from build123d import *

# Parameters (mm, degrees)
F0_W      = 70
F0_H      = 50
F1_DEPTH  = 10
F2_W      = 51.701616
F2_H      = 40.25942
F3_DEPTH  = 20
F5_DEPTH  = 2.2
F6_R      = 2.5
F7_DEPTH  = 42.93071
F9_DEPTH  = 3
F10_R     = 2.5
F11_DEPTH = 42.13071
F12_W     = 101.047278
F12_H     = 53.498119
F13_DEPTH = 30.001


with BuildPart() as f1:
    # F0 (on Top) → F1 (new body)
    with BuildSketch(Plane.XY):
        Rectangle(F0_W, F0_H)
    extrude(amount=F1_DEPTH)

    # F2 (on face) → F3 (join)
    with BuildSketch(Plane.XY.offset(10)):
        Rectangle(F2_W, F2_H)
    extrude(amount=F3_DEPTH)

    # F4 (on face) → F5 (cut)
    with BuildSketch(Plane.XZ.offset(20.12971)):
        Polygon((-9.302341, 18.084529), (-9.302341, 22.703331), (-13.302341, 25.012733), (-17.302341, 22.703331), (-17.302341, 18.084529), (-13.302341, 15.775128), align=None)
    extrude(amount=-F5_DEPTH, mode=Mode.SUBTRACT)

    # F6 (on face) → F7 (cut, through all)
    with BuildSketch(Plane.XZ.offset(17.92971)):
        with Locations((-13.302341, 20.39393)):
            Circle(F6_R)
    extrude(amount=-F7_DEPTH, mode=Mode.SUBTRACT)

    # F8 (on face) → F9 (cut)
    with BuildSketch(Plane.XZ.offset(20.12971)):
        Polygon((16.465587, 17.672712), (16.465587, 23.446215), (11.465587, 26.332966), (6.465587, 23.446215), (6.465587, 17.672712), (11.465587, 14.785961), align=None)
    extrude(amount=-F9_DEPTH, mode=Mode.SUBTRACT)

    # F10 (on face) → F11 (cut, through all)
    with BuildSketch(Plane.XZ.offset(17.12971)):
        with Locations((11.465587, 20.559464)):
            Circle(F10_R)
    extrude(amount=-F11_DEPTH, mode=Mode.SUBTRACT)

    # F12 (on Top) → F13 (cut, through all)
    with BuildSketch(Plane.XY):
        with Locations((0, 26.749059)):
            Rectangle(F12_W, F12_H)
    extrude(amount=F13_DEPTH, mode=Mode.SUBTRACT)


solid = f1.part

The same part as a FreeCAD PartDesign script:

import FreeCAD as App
import Part
import Sketcher
from FreeCAD import Vector
Q = App.Units.Quantity

doc = App.newDocument("Part")
body = doc.addObject("PartDesign::Body", "Body")

sketch1 = body.newObject("Sketcher::SketchObject", "Sketch")
sketch1.AttachmentSupport = (doc.getObject("XY_Plane"), [""])
sketch1.MapMode = "FlatFace"
sketch1.addGeometry(Part.LineSegment(Vector(-35, 25, 0), Vector(-35, -25, 0)), False)
sketch1.addGeometry(Part.LineSegment(Vector(-35, -25, 0), Vector(35, -25, 0)), False)
sketch1.addGeometry(Part.LineSegment(Vector(35, -25, 0), Vector(35, 25, 0)), False)
sketch1.addGeometry(Part.LineSegment(Vector(35, 25, 0), Vector(-35, 25, 0)), False)
sketch1.addConstraint(Sketcher.Constraint("Coincident", 0, 2, 1, 1))
sketch1.addConstraint(Sketcher.Constraint("Coincident", 1, 2, 2, 1))
sketch1.addConstraint(Sketcher.Constraint("Coincident", 2, 2, 3, 1))
sketch1.addConstraint(Sketcher.Constraint("Coincident", 3, 2, 0, 1))
sketch1.addConstraint(Sketcher.Constraint("Vertical", 0))
sketch1.addConstraint(Sketcher.Constraint("Horizontal", 1))
sketch1.addConstraint(Sketcher.Constraint("Vertical", 2))
sketch1.addConstraint(Sketcher.Constraint("Horizontal", 3))
sketch1.addConstraint(Sketcher.Constraint("Symmetric", 0, 2, 2, 2, -1, 1))
sketch1.addConstraint(Sketcher.Constraint("DistanceX", 1, 1, 1, 2, Q("70 mm")))
sketch1.addConstraint(Sketcher.Constraint("DistanceY", 0, 2, 0, 1, Q("50 mm")))
pad1 = body.newObject("PartDesign::Pad", "Pad")
pad1.Profile = sketch1
pad1.Length = 10

sketch2 = body.newObject("Sketcher::SketchObject", "Sketch001")
sketch2.AttachmentSupport = (doc.getObject("XY_Plane"), [""])
sketch2.MapMode = "FlatFace"
sketch2.AttachmentOffset = App.Placement(Vector(0, 0, 10), App.Rotation())
sketch2.addGeometry(Part.LineSegment(Vector(-26, 20, 0), Vector(-26, -20, 0)), False)
sketch2.addGeometry(Part.LineSegment(Vector(-26, -20, 0), Vector(26, -20, 0)), False)
sketch2.addGeometry(Part.LineSegment(Vector(26, -20, 0), Vector(26, 20, 0)), False)
sketch2.addGeometry(Part.LineSegment(Vector(26, 20, 0), Vector(-26, 20, 0)), False)
sketch2.addConstraint(Sketcher.Constraint("Coincident", 0, 2, 1, 1))
sketch2.addConstraint(Sketcher.Constraint("Coincident", 1, 2, 2, 1))
sketch2.addConstraint(Sketcher.Constraint("Coincident", 2, 2, 3, 1))
sketch2.addConstraint(Sketcher.Constraint("Coincident", 3, 2, 0, 1))
sketch2.addConstraint(Sketcher.Constraint("Vertical", 0))
sketch2.addConstraint(Sketcher.Constraint("Horizontal", 1))
sketch2.addConstraint(Sketcher.Constraint("Vertical", 2))
sketch2.addConstraint(Sketcher.Constraint("Horizontal", 3))
sketch2.addConstraint(Sketcher.Constraint("Symmetric", 0, 2, 2, 2, -1, 1))
sketch2.addConstraint(Sketcher.Constraint("DistanceY", 0, 2, 0, 1, Q("40.25942 mm")))
sketch2.addConstraint(Sketcher.Constraint("DistanceX", 1, 1, 1, 2, Q("51.701616 mm")))
pad2 = body.newObject("PartDesign::Pad", "Pad001")
pad2.Profile = sketch2
pad2.Length = 20

sketch3 = body.newObject("Sketcher::SketchObject", "Sketch002")
sketch3.AttachmentSupport = (doc.getObject("XZ_Plane"), [""])
sketch3.MapMode = "FlatFace"
sketch3.AttachmentOffset = App.Placement(Vector(0, 0, 20.12971), App.Rotation())
sketch3.addGeometry(Part.LineSegment(Vector(-9.3, 18.1, 0), Vector(-9.3, 22.7, 0)), False)
sketch3.addGeometry(Part.LineSegment(Vector(-9.3, 22.7, 0), Vector(-13.3, 25, 0)), False)
sketch3.addGeometry(Part.LineSegment(Vector(-13.3, 25, 0), Vector(-17.3, 22.7, 0)), False)
sketch3.addGeometry(Part.LineSegment(Vector(-17.3, 22.7, 0), Vector(-17.3, 18.1, 0)), False)
sketch3.addGeometry(Part.LineSegment(Vector(-17.3, 18.1, 0), Vector(-13.3, 15.8, 0)), False)
sketch3.addGeometry(Part.LineSegment(Vector(-13.3, 15.8, 0), Vector(-9.3, 18.1, 0)), False)
sketch3.addConstraint(Sketcher.Constraint("Coincident", 0, 2, 1, 1))
sketch3.addConstraint(Sketcher.Constraint("Coincident", 1, 2, 2, 1))
sketch3.addConstraint(Sketcher.Constraint("Coincident", 2, 2, 3, 1))
sketch3.addConstraint(Sketcher.Constraint("Coincident", 3, 2, 4, 1))
sketch3.addConstraint(Sketcher.Constraint("Coincident", 4, 2, 5, 1))
sketch3.addConstraint(Sketcher.Constraint("Coincident", 5, 2, 0, 1))
sketch3.addConstraint(Sketcher.Constraint("Vertical", 0))
sketch3.addConstraint(Sketcher.Constraint("Vertical", 3))
sketch3.addConstraint(Sketcher.Constraint("Parallel", 1, 4))
sketch3.addConstraint(Sketcher.Constraint("Parallel", 2, 5))
sketch3.addConstraint(Sketcher.Constraint("Horizontal", 0, 2, 2, 2))
sketch3.addConstraint(Sketcher.Constraint("Horizontal", 3, 2, 5, 2))
sketch3.addConstraint(Sketcher.Constraint("Vertical", 1, 2, 4, 2))
sketch3.addConstraint(Sketcher.Constraint("Angle", 1, Q("149.99999 deg")))
sketch3.addConstraint(Sketcher.Constraint("DistanceX", 1, 2, 0, 2, Q("4 mm")))
sketch3.addConstraint(Sketcher.Constraint("DistanceY", 0, 1, 0, 2, Q("4.618802 mm")))
sketch3.addConstraint(Sketcher.Constraint("DistanceX", 0, 2, -1, 1, Q("9.302341 mm")))
sketch3.addConstraint(Sketcher.Constraint("DistanceY", -1, 1, 0, 2, Q("22.703331 mm")))
pocket1 = body.newObject("PartDesign::Pocket", "Pocket")
pocket1.Profile = sketch3
pocket1.Length = 2.2

sketch4 = body.newObject("Sketcher::SketchObject", "Sketch003")
sketch4.AttachmentSupport = (doc.getObject("XZ_Plane"), [""])
sketch4.MapMode = "FlatFace"
sketch4.AttachmentOffset = App.Placement(Vector(0, 0, 17.92971), App.Rotation())
sketch4.addGeometry(Part.Circle(Vector(-13.3, 20.4, 0), Vector(0, 0, 1), 2.5), False)
sketch4.addConstraint(Sketcher.Constraint("Diameter", 0, Q("5 mm")))
sketch4.addConstraint(Sketcher.Constraint("DistanceX", 0, 3, -1, 1, Q("13.302341 mm")))
sketch4.addConstraint(Sketcher.Constraint("DistanceY", -1, 1, 0, 3, Q("20.39393 mm")))
pocket2 = body.newObject("PartDesign::Pocket", "Pocket001")
pocket2.Profile = sketch4
pocket2.Type = "ThroughAll"

sketch5 = body.newObject("Sketcher::SketchObject", "Sketch004")
sketch5.AttachmentSupport = (doc.getObject("XZ_Plane"), [""])
sketch5.MapMode = "FlatFace"
sketch5.AttachmentOffset = App.Placement(Vector(0, 0, 20.12971), App.Rotation())
sketch5.addGeometry(Part.LineSegment(Vector(16, 18, 0), Vector(16, 23, 0)), False)
sketch5.addGeometry(Part.LineSegment(Vector(16, 23, 0), Vector(11, 26, 0)), False)
sketch5.addGeometry(Part.LineSegment(Vector(11, 26, 0), Vector(6, 23, 0)), False)
sketch5.addGeometry(Part.LineSegment(Vector(6, 23, 0), Vector(6, 18, 0)), False)
sketch5.addGeometry(Part.LineSegment(Vector(6, 18, 0), Vector(11, 15, 0)), False)
sketch5.addGeometry(Part.LineSegment(Vector(11, 15, 0), Vector(16, 18, 0)), False)
sketch5.addConstraint(Sketcher.Constraint("Coincident", 0, 2, 1, 1))
sketch5.addConstraint(Sketcher.Constraint("Coincident", 1, 2, 2, 1))
sketch5.addConstraint(Sketcher.Constraint("Coincident", 2, 2, 3, 1))
sketch5.addConstraint(Sketcher.Constraint("Coincident", 3, 2, 4, 1))
sketch5.addConstraint(Sketcher.Constraint("Coincident", 4, 2, 5, 1))
sketch5.addConstraint(Sketcher.Constraint("Coincident", 5, 2, 0, 1))
sketch5.addConstraint(Sketcher.Constraint("Vertical", 0))
sketch5.addConstraint(Sketcher.Constraint("Vertical", 3))
sketch5.addConstraint(Sketcher.Constraint("Parallel", 1, 4))
sketch5.addConstraint(Sketcher.Constraint("Parallel", 2, 5))
sketch5.addConstraint(Sketcher.Constraint("Horizontal", 0, 2, 2, 2))
sketch5.addConstraint(Sketcher.Constraint("Horizontal", 3, 2, 5, 2))
sketch5.addConstraint(Sketcher.Constraint("Vertical", 1, 2, 4, 2))
sketch5.addConstraint(Sketcher.Constraint("Angle", 1, Q("150.000003 deg")))
sketch5.addConstraint(Sketcher.Constraint("DistanceX", 1, 2, 0, 2, Q("5 mm")))
sketch5.addConstraint(Sketcher.Constraint("DistanceY", 0, 1, 0, 2, Q("5.773503 mm")))
sketch5.addConstraint(Sketcher.Constraint("DistanceY", -1, 1, 4, 2, Q("14.785961 mm")))
sketch5.addConstraint(Sketcher.Constraint("DistanceX", -1, 1, 0, 2, Q("16.465587 mm")))
pocket3 = body.newObject("PartDesign::Pocket", "Pocket002")
pocket3.Profile = sketch5
pocket3.Length = 3

sketch6 = body.newObject("Sketcher::SketchObject", "Sketch005")
sketch6.AttachmentSupport = (doc.getObject("XZ_Plane"), [""])
sketch6.MapMode = "FlatFace"
sketch6.AttachmentOffset = App.Placement(Vector(0, 0, 17.12971), App.Rotation())
sketch6.addGeometry(Part.Circle(Vector(11.5, 20.6, 0), Vector(0, 0, 1), 2.5), False)
sketch6.addConstraint(Sketcher.Constraint("Diameter", 0, Q("5 mm")))
sketch6.addConstraint(Sketcher.Constraint("DistanceX", -1, 1, 0, 3, Q("11.465587 mm")))
sketch6.addConstraint(Sketcher.Constraint("DistanceY", -1, 1, 0, 3, Q("20.559464 mm")))
pocket4 = body.newObject("PartDesign::Pocket", "Pocket003")
pocket4.Profile = sketch6
pocket4.Type = "ThroughAll"

sketch7 = body.newObject("Sketcher::SketchObject", "Sketch006")
sketch7.AttachmentSupport = (doc.getObject("XY_Plane"), [""])
sketch7.MapMode = "FlatFace"
sketch7.addGeometry(Part.LineSegment(Vector(-51, 53, 0), Vector(-51, 0, 0)), False)
sketch7.addGeometry(Part.LineSegment(Vector(-51, 0, 0), Vector(51, 0, 0)), False)
sketch7.addGeometry(Part.LineSegment(Vector(51, 0, 0), Vector(51, 53, 0)), False)
sketch7.addGeometry(Part.LineSegment(Vector(51, 53, 0), Vector(-51, 53, 0)), False)
sketch7.addConstraint(Sketcher.Constraint("Coincident", 0, 2, 1, 1))
sketch7.addConstraint(Sketcher.Constraint("Coincident", 1, 2, 2, 1))
sketch7.addConstraint(Sketcher.Constraint("Coincident", 2, 2, 3, 1))
sketch7.addConstraint(Sketcher.Constraint("Coincident", 3, 2, 0, 1))
sketch7.addConstraint(Sketcher.Constraint("Vertical", 0))
sketch7.addConstraint(Sketcher.Constraint("Horizontal", 1))
sketch7.addConstraint(Sketcher.Constraint("Vertical", 2))
sketch7.addConstraint(Sketcher.Constraint("Horizontal", 3))
sketch7.addConstraint(Sketcher.Constraint("Symmetric", 0, 2, 1, 2, -1, 1))
sketch7.addConstraint(Sketcher.Constraint("DistanceX", 1, 1, 1, 2, Q("101.047278 mm")))
sketch7.addConstraint(Sketcher.Constraint("DistanceY", 0, 2, 0, 1, Q("53.498119 mm")))
pocket5 = body.newObject("PartDesign::Pocket", "Pocket004")
pocket5.Profile = sketch7
pocket5.Type = "ThroughAll"
pocket5.Reversed = True

doc.recompute()
